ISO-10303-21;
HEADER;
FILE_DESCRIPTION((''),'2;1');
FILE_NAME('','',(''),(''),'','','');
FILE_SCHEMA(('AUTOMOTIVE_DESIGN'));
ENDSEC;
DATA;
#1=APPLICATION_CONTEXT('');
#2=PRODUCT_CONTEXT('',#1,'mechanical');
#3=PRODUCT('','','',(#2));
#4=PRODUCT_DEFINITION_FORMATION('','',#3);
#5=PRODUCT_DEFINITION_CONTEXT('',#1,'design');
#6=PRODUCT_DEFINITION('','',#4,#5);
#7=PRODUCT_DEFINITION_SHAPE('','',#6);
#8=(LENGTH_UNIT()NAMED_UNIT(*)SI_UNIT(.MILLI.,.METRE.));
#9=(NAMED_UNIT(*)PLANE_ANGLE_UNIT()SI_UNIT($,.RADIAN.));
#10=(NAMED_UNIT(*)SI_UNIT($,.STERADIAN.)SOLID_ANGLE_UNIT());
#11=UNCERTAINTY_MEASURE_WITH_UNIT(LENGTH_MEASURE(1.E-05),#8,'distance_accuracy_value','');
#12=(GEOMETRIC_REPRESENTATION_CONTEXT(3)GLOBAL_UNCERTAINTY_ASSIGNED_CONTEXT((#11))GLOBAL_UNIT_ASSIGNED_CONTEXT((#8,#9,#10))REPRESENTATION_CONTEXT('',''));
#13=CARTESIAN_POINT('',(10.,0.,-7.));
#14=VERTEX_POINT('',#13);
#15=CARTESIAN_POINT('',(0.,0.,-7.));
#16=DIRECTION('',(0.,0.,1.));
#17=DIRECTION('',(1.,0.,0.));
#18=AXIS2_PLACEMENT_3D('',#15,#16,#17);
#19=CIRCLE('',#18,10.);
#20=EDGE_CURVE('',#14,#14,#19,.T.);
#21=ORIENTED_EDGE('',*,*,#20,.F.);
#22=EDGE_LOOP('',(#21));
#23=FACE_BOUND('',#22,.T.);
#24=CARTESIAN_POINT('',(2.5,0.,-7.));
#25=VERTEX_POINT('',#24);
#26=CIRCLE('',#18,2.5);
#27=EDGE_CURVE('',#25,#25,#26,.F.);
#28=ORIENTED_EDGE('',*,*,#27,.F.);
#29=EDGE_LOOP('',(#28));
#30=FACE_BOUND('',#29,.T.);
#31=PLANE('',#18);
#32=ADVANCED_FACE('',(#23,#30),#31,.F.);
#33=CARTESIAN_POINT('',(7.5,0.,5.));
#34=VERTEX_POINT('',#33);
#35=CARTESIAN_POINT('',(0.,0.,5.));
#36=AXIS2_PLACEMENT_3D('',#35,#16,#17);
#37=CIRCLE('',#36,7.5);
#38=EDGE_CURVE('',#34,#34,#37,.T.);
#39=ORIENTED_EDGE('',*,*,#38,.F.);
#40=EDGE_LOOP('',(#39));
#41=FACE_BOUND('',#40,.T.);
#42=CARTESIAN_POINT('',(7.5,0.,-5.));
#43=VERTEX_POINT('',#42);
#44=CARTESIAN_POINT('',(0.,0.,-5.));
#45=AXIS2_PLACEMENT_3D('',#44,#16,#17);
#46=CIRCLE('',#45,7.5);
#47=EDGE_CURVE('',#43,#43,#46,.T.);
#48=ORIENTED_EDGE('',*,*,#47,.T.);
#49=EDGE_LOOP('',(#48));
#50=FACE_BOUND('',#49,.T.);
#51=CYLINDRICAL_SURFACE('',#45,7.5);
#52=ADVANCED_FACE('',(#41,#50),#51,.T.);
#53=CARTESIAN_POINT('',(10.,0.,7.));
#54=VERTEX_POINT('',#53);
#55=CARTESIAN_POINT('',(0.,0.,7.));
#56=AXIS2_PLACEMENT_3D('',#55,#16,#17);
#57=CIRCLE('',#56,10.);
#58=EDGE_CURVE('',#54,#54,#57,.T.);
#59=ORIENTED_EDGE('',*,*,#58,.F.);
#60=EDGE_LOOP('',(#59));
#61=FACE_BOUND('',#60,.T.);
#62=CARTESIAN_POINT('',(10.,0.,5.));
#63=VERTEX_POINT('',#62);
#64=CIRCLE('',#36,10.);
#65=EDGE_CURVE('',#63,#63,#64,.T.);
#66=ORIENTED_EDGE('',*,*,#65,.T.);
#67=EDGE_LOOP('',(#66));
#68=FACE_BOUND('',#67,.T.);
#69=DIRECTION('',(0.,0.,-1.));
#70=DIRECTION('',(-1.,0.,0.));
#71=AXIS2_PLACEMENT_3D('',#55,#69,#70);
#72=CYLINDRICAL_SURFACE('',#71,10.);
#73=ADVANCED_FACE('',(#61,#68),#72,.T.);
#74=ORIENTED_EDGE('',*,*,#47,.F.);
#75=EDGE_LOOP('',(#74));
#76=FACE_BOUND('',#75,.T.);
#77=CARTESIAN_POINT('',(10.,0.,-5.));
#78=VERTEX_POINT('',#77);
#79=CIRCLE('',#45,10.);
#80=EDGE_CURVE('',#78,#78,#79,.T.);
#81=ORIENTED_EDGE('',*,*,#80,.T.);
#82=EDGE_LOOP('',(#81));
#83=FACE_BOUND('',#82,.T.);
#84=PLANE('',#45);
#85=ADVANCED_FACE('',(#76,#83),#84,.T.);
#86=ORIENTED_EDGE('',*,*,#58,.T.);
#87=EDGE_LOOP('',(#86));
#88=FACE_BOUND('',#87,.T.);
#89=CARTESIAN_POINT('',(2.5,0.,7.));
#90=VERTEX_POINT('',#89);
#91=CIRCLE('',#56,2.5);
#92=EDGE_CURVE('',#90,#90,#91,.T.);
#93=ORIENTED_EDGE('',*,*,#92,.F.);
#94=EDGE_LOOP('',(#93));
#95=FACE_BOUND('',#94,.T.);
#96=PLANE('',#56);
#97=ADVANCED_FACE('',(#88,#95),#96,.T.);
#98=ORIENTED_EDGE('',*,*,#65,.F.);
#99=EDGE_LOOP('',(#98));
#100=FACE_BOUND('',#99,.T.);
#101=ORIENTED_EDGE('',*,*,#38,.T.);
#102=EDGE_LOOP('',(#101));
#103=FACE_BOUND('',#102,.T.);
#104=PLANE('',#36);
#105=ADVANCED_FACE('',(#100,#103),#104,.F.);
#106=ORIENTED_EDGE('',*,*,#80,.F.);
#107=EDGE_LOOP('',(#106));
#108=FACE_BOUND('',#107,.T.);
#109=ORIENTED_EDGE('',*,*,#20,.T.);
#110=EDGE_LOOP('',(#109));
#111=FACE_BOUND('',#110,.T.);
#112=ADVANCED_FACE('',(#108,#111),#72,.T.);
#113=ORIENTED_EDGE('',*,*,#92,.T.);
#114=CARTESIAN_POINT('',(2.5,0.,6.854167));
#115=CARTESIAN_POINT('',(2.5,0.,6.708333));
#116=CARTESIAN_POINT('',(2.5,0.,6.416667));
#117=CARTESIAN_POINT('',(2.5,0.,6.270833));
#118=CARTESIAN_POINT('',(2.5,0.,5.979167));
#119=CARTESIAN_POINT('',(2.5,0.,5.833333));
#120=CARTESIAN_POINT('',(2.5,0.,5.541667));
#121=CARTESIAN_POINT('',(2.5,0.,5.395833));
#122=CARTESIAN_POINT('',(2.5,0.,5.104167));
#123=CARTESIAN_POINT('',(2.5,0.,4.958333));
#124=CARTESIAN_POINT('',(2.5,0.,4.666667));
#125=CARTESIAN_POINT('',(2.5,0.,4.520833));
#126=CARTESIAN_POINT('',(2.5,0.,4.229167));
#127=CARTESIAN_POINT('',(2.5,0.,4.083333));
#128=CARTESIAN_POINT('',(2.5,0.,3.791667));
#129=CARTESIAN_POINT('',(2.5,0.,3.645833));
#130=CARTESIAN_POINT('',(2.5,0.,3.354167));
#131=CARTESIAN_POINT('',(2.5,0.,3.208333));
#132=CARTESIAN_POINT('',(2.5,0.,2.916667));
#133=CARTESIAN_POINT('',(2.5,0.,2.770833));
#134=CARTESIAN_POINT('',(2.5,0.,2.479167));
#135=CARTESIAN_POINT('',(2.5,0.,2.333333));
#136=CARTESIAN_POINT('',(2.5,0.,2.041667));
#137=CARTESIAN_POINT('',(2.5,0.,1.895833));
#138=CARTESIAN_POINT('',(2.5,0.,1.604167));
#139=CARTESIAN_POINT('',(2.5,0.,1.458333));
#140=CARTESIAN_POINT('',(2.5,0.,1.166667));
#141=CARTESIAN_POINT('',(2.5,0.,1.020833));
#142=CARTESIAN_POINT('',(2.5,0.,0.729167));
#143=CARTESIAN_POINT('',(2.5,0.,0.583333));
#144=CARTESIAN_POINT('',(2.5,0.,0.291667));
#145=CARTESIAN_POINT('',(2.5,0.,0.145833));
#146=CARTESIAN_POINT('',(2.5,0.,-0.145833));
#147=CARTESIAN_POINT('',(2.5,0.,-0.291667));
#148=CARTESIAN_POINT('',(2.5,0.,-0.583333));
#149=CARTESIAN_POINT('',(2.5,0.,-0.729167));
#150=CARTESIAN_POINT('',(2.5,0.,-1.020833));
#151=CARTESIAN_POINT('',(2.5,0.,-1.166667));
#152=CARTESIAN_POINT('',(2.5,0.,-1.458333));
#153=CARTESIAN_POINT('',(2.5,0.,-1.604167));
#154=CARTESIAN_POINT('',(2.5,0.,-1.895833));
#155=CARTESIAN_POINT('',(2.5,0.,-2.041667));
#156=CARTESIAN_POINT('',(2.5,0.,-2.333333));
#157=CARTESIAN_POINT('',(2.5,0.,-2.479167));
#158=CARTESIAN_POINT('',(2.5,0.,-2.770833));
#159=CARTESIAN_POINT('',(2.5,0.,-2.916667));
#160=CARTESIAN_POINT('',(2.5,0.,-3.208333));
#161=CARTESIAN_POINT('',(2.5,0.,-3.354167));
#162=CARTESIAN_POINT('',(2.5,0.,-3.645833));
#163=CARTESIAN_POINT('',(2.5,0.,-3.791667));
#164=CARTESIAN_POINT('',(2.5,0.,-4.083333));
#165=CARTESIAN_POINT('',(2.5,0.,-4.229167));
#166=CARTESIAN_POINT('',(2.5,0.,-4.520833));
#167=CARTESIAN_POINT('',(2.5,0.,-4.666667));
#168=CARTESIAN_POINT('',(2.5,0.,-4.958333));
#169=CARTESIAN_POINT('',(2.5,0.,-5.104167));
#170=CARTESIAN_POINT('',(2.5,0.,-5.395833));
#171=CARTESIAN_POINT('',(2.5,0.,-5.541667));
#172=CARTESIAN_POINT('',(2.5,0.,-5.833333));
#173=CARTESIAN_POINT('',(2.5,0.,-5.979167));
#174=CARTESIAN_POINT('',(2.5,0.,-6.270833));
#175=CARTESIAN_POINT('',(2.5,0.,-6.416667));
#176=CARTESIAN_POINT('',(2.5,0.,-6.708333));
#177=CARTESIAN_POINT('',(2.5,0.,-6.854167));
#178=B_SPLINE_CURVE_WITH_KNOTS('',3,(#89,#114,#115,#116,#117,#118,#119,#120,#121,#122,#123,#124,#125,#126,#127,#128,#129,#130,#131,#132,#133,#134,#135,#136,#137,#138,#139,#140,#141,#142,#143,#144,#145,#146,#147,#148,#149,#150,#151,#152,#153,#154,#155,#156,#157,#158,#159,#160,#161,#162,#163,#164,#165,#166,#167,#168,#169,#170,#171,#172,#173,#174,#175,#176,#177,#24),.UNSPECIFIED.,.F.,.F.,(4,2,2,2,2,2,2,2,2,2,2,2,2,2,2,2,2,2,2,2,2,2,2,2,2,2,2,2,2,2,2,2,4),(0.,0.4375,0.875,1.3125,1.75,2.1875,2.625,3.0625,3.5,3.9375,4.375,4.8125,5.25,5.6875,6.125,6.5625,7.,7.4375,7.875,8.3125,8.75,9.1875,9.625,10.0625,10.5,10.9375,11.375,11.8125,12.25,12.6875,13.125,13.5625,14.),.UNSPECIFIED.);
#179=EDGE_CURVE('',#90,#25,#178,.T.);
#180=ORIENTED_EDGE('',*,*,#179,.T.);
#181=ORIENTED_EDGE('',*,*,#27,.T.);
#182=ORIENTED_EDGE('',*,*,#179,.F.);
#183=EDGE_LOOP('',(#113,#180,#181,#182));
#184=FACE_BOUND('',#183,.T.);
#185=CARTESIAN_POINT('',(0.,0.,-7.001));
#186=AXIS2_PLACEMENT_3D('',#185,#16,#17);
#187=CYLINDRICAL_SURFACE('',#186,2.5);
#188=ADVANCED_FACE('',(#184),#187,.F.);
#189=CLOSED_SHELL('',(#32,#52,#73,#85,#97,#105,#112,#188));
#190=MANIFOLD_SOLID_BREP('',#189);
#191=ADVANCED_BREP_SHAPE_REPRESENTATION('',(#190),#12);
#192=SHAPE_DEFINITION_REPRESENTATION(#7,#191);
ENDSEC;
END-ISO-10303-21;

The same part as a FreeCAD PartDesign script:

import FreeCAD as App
import Part
import Sketcher

V = App.Vector

doc = App.newDocument("Part")
body = doc.addObject("PartDesign::Body", "Body")

sketch1 = body.newObject("Sketcher::SketchObject", "Sketch")
sketch1.AttachmentSupport = (doc.getObject("XY_Plane"), [""])
sketch1.MapMode = "FlatFace"
sketch1.addGeometry(Part.Circle(V(0, 0, 0), V(0, 0, 1), 10), False)
sketch1.addConstraint(Sketcher.Constraint("Coincident", 0, 3, -1, 1))
sketch1.addConstraint(Sketcher.Constraint("Diameter", 0, 20.0))
pad1 = body.newObject("PartDesign::Pad", "Pad")
pad1.Profile = sketch1
pad1.Length = 14
pad1.Midplane = True

sketch2 = body.newObject("Sketcher::SketchObject", "Sketch001")
sketch2.AttachmentSupport = (doc.getObject("XY_Plane"), [""])
sketch2.MapMode = "FlatFace"
sketch2.addGeometry(Part.Circle(V(0, 0, 0), V(0, 0, 1), 10), False)
sketch2.addGeometry(Part.Circle(V(0, 0, 0), V(0, 0, 1), 8), False)
sketch2.addConstraint(Sketcher.Constraint("Coincident", 0, 3, -1, 1))
sketch2.addConstraint(Sketcher.Constraint("Coincident", 1, 3, -1, 1))
sketch2.addConstraint(Sketcher.Constraint("Diameter", 0, 20.0))
sketch2.addConstraint(Sketcher.Constraint("Diameter", 1, 15.0))
pocket1 = body.newObject("PartDesign::Pocket", "Pocket")
pocket1.Profile = sketch2
pocket1.Length = 10
pocket1.Midplane = True

sketch3 = body.newObject("Sketcher::SketchObject", "Sketch002")
sketch3.AttachmentSupport = (doc.getObject("XY_Plane"), [""])
sketch3.MapMode = "FlatFace"
sketch3.AttachmentOffset = App.Placement(V(0, 0, 7), App.Rotation())
sketch3.addGeometry(Part.Circle(V(0, 0, 0), V(0, 0, 1), 2.5), False)
sketch3.addConstraint(Sketcher.Constraint("Coincident", 0, 3, -1, 1))
sketch3.addConstraint(Sketcher.Constraint("Diameter", 0, 5.0))
pocket2 = body.newObject("PartDesign::Pocket", "Pocket001")
pocket2.Profile = sketch3
pocket2.Type = "UpToFirst"

doc.recompute()
